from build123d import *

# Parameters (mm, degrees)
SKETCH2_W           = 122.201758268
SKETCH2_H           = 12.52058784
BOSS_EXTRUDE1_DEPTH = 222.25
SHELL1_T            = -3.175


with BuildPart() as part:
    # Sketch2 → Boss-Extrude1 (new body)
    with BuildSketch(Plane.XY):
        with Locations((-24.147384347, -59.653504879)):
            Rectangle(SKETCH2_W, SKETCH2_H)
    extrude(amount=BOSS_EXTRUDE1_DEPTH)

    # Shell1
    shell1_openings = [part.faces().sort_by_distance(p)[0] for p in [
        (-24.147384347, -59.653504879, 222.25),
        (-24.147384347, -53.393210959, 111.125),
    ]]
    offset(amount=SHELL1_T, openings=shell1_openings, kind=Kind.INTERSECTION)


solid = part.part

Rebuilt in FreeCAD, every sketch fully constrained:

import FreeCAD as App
import Part
import Sketcher

V = App.Vector
Q = App.Units.Quantity


def faces_at(feature, points):
    """Names of the faces that lie closest to the given points."""
    faces = feature.Shape.Faces
    near = lambda p: min(range(len(faces)), key=lambda i: faces[i].distToShape(Part.Vertex(*p))[0])
    return sorted({f"Face{near(p) + 1}" for p in points})


def add_polygon(sketch, points):
    """Adds a closed chain of lines whose ends are joined by coincident constraints."""
    first, n = sketch.GeometryCount, len(points)
    for a, b in zip(points, points[1:] + points[:1]):
        sketch.addGeometry(Part.LineSegment(App.Vector(*a, 0), App.Vector(*b, 0)), False)
    for i in range(n):
        sketch.addConstraint(Sketcher.Constraint("Coincident", first + i, 2, first + (i + 1) % n, 1))

doc = App.newDocument("Part")
body = doc.addObject("PartDesign::Body", "Body")

# Sketch on XY plane
sketch1 = body.newObject("Sketcher::SketchObject", "Sketch")
sketch1.AttachmentSupport = (doc.getObject("XY_Plane"), [""])
sketch1.MapMode = "FlatFace"
add_polygon(sketch1, [(-85, -53), (-85, -66), (37, -66), (37, -53)])  # lines 0-3
sketch1.addConstraint(Sketcher.Constraint("Vertical", 0))
sketch1.addConstraint(Sketcher.Constraint("Horizontal", 1))
sketch1.addConstraint(Sketcher.Constraint("Vertical", 2))
sketch1.addConstraint(Sketcher.Constraint("Horizontal", 3))
sketch1.addConstraint(Sketcher.Constraint("DistanceX", 1, 1, 1, 2, 122.201758))
sketch1.addConstraint(Sketcher.Constraint("DistanceY", 0, 2, -1, 1, 65.913799))
sketch1.addConstraint(Sketcher.Constraint("DistanceY", 0, 2, 0, 1, 12.520588))
sketch1.addConstraint(Sketcher.Constraint("DistanceX", 0, 2, -1, 1, 85.248263))
pad1 = body.newObject("PartDesign::Pad", "Pad")
pad1.Profile = sketch1
pad1.Length = Q("8.75 in")
doc.recompute()

thickness = body.newObject("PartDesign::Thickness", "Thickness")
thickness.Base = (pad1, faces_at(pad1, [(-24.147, -59.654, 222.25), (-24.147, -53.393, 111.125)]))
thickness.Value = Q("0.125 in")
thickness.Reversed = True
thickness.Join = "Intersection"

doc.recompute()
